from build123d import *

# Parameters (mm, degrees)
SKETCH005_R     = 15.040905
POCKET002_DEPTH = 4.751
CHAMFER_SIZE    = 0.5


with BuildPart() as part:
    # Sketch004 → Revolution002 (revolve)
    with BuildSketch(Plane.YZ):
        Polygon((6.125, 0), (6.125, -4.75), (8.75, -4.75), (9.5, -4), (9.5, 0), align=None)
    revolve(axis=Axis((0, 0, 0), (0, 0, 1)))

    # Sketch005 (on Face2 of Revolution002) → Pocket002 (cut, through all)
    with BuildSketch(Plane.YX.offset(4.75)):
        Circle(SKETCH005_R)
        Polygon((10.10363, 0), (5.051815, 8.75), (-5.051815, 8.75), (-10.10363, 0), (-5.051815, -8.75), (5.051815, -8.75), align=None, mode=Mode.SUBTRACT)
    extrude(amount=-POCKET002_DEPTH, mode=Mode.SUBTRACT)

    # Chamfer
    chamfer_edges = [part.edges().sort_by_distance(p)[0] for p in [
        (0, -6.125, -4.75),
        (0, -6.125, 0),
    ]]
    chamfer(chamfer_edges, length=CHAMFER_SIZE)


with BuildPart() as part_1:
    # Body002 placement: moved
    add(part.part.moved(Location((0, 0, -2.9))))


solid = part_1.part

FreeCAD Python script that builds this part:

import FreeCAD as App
import Part
import Sketcher

V = App.Vector
Q = App.Units.Quantity


def edges_at(feature, points):
    """Names of the edges that pass closest to the given points."""
    edges = feature.Shape.Edges
    near = lambda p: min(range(len(edges)), key=lambda i: edges[i].distToShape(Part.Vertex(*p))[0])
    return sorted({f"Edge{near(p) + 1}" for p in points})

doc = App.newDocument("Part")
body = doc.addObject("PartDesign::Body", "Body")

sketch1 = body.newObject("Sketcher::SketchObject", "Sketch")
sketch1.AttachmentSupport = (doc.getObject("YZ_Plane"), [""])
sketch1.MapMode = "FlatFace"
sketch1.addGeometry(Part.LineSegment(V(6.125, 0, 0), V(6.125, -4.75, 0)), False)
sketch1.addGeometry(Part.LineSegment(V(6.125, -4.75, 0), V(8.75, -4.75, 0)), False)
sketch1.addGeometry(Part.LineSegment(V(8.75, -4.75, 0), V(9.5, -4, 0)), False)
sketch1.addGeometry(Part.LineSegment(V(9.5, -4, 0), V(9.5, 0, 0)), False)
sketch1.addGeometry(Part.LineSegment(V(9.5, 0, 0), V(6.125, 0, 0)), False)
sketch1.addConstraint(Sketcher.Constraint("Coincident", 0, 2, 1, 1))
sketch1.addConstraint(Sketcher.Constraint("Coincident", 1, 2, 2, 1))
sketch1.addConstraint(Sketcher.Constraint("Coincident", 2, 2, 3, 1))
sketch1.addConstraint(Sketcher.Constraint("Coincident", 3, 2, 4, 1))
sketch1.addConstraint(Sketcher.Constraint("Coincident", 4, 2, 0, 1))
sketch1.addConstraint(Sketcher.Constraint("Vertical", 0))
sketch1.addConstraint(Sketcher.Constraint("Horizontal", 1))
sketch1.addConstraint(Sketcher.Constraint("Vertical", 3))
sketch1.addConstraint(Sketcher.Constraint("Horizontal", 4))
sketch1.addConstraint(Sketcher.Constraint("PointOnObject", 3, 2, -1))
sketch1.addConstraint(Sketcher.Constraint("DistanceY", 3, 1, 3, 2, Q("4 mm")))
sketch1.addConstraint(Sketcher.Constraint("Angle", 2, Q("45 deg")))
sketch1.addConstraint(Sketcher.Constraint("DistanceY", 0, 2, 0, 1, Q("4.75 mm")))
sketch1.addConstraint(Sketcher.Constraint("DistanceX", -1, 1, 2, 2, Q("9.5 mm")))
sketch1.addConstraint(Sketcher.Constraint("DistanceX", 1, 1, 1, 2, Q("2.625 mm")))
revolution = body.newObject("PartDesign::Revolution", "Revolution")
revolution.Profile = sketch1
revolution.ReferenceAxis = (sketch1, ["V_Axis"])
revolution.Angle = 360

sketch2 = body.newObject("Sketcher::SketchObject", "Sketch001")
sketch2.AttachmentSupport = (doc.getObject("XY_Plane"), [""])
sketch2.MapMode = "FlatFace"
sketch2.AttachmentOffset = App.Placement(V(0, 0, -4.75), App.Rotation())
sketch2.addGeometry(Part.Circle(V(0, 0, 0), V(0, 0, 1), 15.040905), False)
sketch2.addGeometry(Part.LineSegment(V(8.75, 5.051815, 0), V(0, 10.10363, 0)), False)
sketch2.addGeometry(Part.LineSegment(V(0, 10.10363, 0), V(-8.75, 5.051815, 0)), False)
sketch2.addGeometry(Part.LineSegment(V(-8.75, 5.051815, 0), V(-8.75, -5.051815, 0)), False)
sketch2.addGeometry(Part.LineSegment(V(-8.75, -5.051815, 0), V(0, -10.10363, 0)), False)
sketch2.addGeometry(Part.LineSegment(V(0, -10.10363, 0), V(8.75, -5.051815, 0)), False)
sketch2.addGeometry(Part.LineSegment(V(8.75, -5.051815, 0), V(8.75, 5.051815, 0)), False)
sketch2.addConstraint(Sketcher.Constraint("Coincident", 1, 2, 2, 1))
sketch2.addConstraint(Sketcher.Constraint("Coincident", 2, 2, 3, 1))
sketch2.addConstraint(Sketcher.Constraint("Coincident", 3, 2, 4, 1))
sketch2.addConstraint(Sketcher.Constraint("Coincident", 4, 2, 5, 1))
sketch2.addConstraint(Sketcher.Constraint("Coincident", 5, 2, 6, 1))
sketch2.addConstraint(Sketcher.Constraint("Coincident", 6, 2, 1, 1))
sketch2.addConstraint(Sketcher.Constraint("Vertical", 3))
sketch2.addConstraint(Sketcher.Constraint("Vertical", 6))
sketch2.addConstraint(Sketcher.Constraint("Coincident", 0, 3, -1, 1))
sketch2.addConstraint(Sketcher.Constraint("Symmetric", 1, 2, 4, 2, -1, 1))
sketch2.addConstraint(Sketcher.Constraint("Symmetric", 2, 2, 5, 2, -1, 1))
sketch2.addConstraint(Sketcher.Constraint("PointOnObject", 1, 2, -2))
sketch2.addConstraint(Sketcher.Constraint("Parallel", 1, 4))
sketch2.addConstraint(Sketcher.Constraint("Horizontal", 3, 2, 5, 2))
sketch2.addConstraint(Sketcher.Constraint("Angle", 1, Q("149.999999 deg")))
sketch2.addConstraint(Sketcher.Constraint("DistanceX", 3, 2, 5, 2, Q("17.5 mm")))
sketch2.addConstraint(Sketcher.Constraint("Diameter", 0, Q("30.08181 mm")))
sketch2.addConstraint(Sketcher.Constraint("DistanceY", 3, 2, 3, 1, Q("10.10363 mm")))
pocket1 = body.newObject("PartDesign::Pocket", "Pocket")
pocket1.Profile = sketch2
pocket1.Type = "ThroughAll"
pocket1.Reversed = True
doc.recompute()

chamfer = body.newObject("PartDesign::Chamfer", "Chamfer")
chamfer.Base = (pocket1, edges_at(pocket1, [(0, -6.125, -4.75), (0, -6.125, 0)]))
chamfer.Size = 0.5
body2 = doc.addObject("PartDesign::Body", "Body001")
doc.recompute()

body.Placement = App.Placement(V(0, 0, -2.9), App.Rotation(V(0, 0, 1), 0))
boolean = body2.newObject("PartDesign::Boolean", "Boolean")
boolean.Type = "Fuse"
boolean.addObjects([body])

doc.recompute()
